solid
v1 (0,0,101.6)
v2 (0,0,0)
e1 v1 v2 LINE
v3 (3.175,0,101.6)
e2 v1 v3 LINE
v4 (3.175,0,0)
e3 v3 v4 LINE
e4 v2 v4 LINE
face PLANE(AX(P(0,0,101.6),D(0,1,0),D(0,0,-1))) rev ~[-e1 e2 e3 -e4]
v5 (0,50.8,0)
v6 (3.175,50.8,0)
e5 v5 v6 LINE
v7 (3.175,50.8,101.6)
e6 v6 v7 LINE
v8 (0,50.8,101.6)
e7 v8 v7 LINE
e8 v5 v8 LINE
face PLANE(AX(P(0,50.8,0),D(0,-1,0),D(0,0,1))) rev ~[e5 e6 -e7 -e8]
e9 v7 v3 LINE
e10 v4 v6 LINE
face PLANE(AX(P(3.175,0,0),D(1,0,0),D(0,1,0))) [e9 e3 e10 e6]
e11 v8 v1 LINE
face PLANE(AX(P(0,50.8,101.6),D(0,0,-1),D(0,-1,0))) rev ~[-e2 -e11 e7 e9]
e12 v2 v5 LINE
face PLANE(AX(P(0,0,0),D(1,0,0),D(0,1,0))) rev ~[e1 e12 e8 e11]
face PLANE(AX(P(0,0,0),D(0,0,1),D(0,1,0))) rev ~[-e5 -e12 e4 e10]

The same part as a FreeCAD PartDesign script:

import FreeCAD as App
import Part
import Sketcher
from FreeCAD import Vector
Q = App.Units.Quantity


def add_polygon(sketch, points):
    """Adds a closed chain of lines whose ends are joined by coincident constraints."""
    first, n = sketch.GeometryCount, len(points)
    for a, b in zip(points, points[1:] + points[:1]):
        sketch.addGeometry(Part.LineSegment(App.Vector(*a, 0), App.Vector(*b, 0)), False)
    for i in range(n):
        sketch.addConstraint(Sketcher.Constraint("Coincident", first + i, 2, first + (i + 1) % n, 1))

doc = App.newDocument("Part")
body = doc.addObject("PartDesign::Body", "Body")

sketch1 = doc.addObject("Sketcher::SketchObject", "Sketch")
body.addObject(sketch1)
sketch1.AttachmentSupport = (doc.YZ_Plane, [""])
sketch1.MapMode = "FlatFace"
add_polygon(sketch1, [(0, 102), (0, 0), (51, 0), (51, 102)])
sketch1.addConstraint(Sketcher.Constraint("Vertical", 0))
sketch1.addConstraint(Sketcher.Constraint("Horizontal", 1))
sketch1.addConstraint(Sketcher.Constraint("Vertical", 2))
sketch1.addConstraint(Sketcher.Constraint("Horizontal", 3))
sketch1.addConstraint(Sketcher.Constraint("Coincident", 0, 2, -1, 1))
sketch1.addConstraint(Sketcher.Constraint("DistanceX", 1, 1, 1, 2, Q("2 in")))
sketch1.addConstraint(Sketcher.Constraint("DistanceY", 0, 2, 0, 1, Q("4 in")))
pad1 = doc.addObject("PartDesign::Pad", "Pad")
body.addObject(pad1)
pad1.Profile = sketch1
pad1.Length = Q("0.125 in")

doc.recompute()
